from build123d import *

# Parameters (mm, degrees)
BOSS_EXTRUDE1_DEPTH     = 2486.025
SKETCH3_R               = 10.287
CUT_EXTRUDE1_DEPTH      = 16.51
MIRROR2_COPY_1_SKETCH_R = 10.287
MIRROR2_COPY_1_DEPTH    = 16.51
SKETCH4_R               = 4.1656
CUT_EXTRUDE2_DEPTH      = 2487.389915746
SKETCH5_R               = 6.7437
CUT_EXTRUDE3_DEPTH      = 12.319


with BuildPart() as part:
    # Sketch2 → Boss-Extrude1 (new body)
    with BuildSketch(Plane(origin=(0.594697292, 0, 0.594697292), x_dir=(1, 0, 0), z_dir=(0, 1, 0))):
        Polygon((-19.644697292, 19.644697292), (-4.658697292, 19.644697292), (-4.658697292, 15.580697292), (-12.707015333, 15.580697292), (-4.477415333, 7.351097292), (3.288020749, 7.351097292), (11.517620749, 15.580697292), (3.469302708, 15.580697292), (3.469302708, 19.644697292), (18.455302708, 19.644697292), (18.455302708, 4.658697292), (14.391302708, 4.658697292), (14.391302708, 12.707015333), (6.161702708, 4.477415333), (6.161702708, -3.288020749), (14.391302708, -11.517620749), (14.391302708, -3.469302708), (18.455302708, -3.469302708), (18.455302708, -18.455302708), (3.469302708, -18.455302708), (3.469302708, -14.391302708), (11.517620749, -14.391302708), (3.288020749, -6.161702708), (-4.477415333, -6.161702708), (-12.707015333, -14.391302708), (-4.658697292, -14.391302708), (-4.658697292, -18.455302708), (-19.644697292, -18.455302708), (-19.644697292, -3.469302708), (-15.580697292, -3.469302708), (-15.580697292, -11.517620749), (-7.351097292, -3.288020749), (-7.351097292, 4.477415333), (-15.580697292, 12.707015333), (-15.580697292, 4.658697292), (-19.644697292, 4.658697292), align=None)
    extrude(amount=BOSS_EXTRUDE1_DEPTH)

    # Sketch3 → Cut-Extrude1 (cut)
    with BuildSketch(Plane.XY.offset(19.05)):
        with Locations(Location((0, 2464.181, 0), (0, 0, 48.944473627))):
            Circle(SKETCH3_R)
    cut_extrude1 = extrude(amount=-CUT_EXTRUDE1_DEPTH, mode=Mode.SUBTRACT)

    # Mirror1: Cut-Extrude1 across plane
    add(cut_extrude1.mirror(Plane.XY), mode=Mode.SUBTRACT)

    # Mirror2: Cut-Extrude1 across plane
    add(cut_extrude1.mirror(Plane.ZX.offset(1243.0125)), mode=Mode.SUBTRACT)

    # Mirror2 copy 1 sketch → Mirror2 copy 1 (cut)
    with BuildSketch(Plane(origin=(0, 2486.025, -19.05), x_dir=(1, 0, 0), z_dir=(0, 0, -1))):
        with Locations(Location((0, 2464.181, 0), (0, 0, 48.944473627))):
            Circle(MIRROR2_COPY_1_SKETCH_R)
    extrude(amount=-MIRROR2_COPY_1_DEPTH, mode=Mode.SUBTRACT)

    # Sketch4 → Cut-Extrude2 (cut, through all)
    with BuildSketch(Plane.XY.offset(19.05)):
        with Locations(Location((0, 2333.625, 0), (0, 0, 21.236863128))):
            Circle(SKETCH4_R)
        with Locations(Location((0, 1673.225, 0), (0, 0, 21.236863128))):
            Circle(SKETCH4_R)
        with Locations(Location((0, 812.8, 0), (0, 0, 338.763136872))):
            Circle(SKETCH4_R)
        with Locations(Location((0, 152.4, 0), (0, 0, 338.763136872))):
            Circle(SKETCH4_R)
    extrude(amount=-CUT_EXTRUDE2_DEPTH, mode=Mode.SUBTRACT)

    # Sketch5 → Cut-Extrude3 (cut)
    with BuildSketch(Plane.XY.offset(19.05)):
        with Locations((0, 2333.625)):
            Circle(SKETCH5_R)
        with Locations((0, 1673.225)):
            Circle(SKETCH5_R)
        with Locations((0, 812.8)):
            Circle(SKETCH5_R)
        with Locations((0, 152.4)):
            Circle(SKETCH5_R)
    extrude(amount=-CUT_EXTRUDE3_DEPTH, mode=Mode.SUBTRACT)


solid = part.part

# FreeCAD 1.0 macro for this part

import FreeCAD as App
import Part
import Sketcher
Q = App.Units.Quantity

doc = App.newDocument("Part")
body = doc.addObject("PartDesign::Body", "Body")

# Sketch on XZ plane
sketch1 = body.newObject("Sketcher::SketchObject", "Sketch")
sketch1.AttachmentSupport = (doc.getObject("XZ_Plane"), [""])
sketch1.MapMode = "FlatFace"
sketch1.addGeometry([
    Part.LineSegment(App.Vector(-4.1, -19.1, 0), App.Vector(-19.1, -19.1, 0)),  # 0
    Part.LineSegment(App.Vector(-19.1, -19.1, 0), App.Vector(-19.1, -4.1, 0)),  # 1
    Part.LineSegment(App.Vector(-19.1, -4.1, 0), App.Vector(-15, -4.1, 0)),  # 2
    Part.LineSegment(App.Vector(-15, -4.1, 0), App.Vector(-15, -12.1, 0)),  # 3
    Part.LineSegment(App.Vector(-15, -12.1, 0), App.Vector(-6.8, -3.9, 0)),  # 4
    Part.LineSegment(App.Vector(-6.8, -3.9, 0), App.Vector(-6.8, 3.9, 0)),  # 5
    Part.LineSegment(App.Vector(-6.8, 3.9, 0), App.Vector(-15, 12.1, 0)),  # 6
    Part.LineSegment(App.Vector(-15, 12.1, 0), App.Vector(-15, 4.1, 0)),  # 7
    Part.LineSegment(App.Vector(-15, 4.1, 0), App.Vector(-19.1, 4.1, 0)),  # 8
    Part.LineSegment(App.Vector(-19.1, 4.1, 0), App.Vector(-19.1, 19.1, 0)),  # 9
    Part.LineSegment(App.Vector(-19.1, 19.1, 0), App.Vector(-4.1, 19.1, 0)),  # 10
    Part.LineSegment(App.Vector(-4.1, 19.1, 0), App.Vector(-4.1, 15, 0)),  # 11
    Part.LineSegment(App.Vector(-4.1, 15, 0), App.Vector(-12.1, 15, 0)),  # 12
    Part.LineSegment(App.Vector(-12.1, 15, 0), App.Vector(-3.9, 6.8, 0)),  # 13
    Part.LineSegment(App.Vector(-3.9, 6.8, 0), App.Vector(3.9, 6.8, 0)),  # 14
    Part.LineSegment(App.Vector(3.9, 6.8, 0), App.Vector(12.1, 15, 0)),  # 15
    Part.LineSegment(App.Vector(12.1, 15, 0), App.Vector(4.1, 15, 0)),  # 16
    Part.LineSegment(App.Vector(4.1, 15, 0), App.Vector(4.1, 19.1, 0)),  # 17
    Part.LineSegment(App.Vector(4.1, 19.1, 0), App.Vector(19.1, 19.1, 0)),  # 18
    Part.LineSegment(App.Vector(19.1, 19.1, 0), App.Vector(19.1, 4.1, 0)),  # 19
    Part.LineSegment(App.Vector(19.1, 4.1, 0), App.Vector(15, 4.1, 0)),  # 20
    Part.LineSegment(App.Vector(15, 4.1, 0), App.Vector(15, 12.1, 0)),  # 21
    Part.LineSegment(App.Vector(15, 12.1, 0), App.Vector(6.8, 3.9, 0)),  # 22
    Part.LineSegment(App.Vector(6.8, 3.9, 0), App.Vector(6.8, -3.9, 0)),  # 23
    Part.LineSegment(App.Vector(6.8, -3.9, 0), App.Vector(15, -12.1, 0)),  # 24
    Part.LineSegment(App.Vector(15, -12.1, 0), App.Vector(15, -4.1, 0)),  # 25
    Part.LineSegment(App.Vector(15, -4.1, 0), App.Vector(19.1, -4.1, 0)),  # 26
    Part.LineSegment(App.Vector(19.1, -4.1, 0), App.Vector(19.1, -19.1, 0)),  # 27
    Part.LineSegment(App.Vector(19.1, -19.1, 0), App.Vector(4.1, -19.1, 0)),  # 28
    Part.LineSegment(App.Vector(4.1, -19.1, 0), App.Vector(4.1, -15, 0)),  # 29
    Part.LineSegment(App.Vector(4.1, -15, 0), App.Vector(12.1, -15, 0)),  # 30
    Part.LineSegment(App.Vector(12.1, -15, 0), App.Vector(3.9, -6.8, 0)),  # 31
    Part.LineSegment(App.Vector(3.9, -6.8, 0), App.Vector(-3.9, -6.8, 0)),  # 32
    Part.LineSegment(App.Vector(-3.9, -6.8, 0), App.Vector(-12.1, -15, 0)),  # 33
    Part.LineSegment(App.Vector(-12.1, -15, 0), App.Vector(-4.1, -15, 0)),  # 34
    Part.LineSegment(App.Vector(-4.1, -15, 0), App.Vector(-4.1, -19.1, 0)),  # 35
], False)
sketch1.addConstraint([
    Sketcher.Constraint("Coincident", 0, 2, 1, 1),
    Sketcher.Constraint("Coincident", 1, 2, 2, 1),
    Sketcher.Constraint("Coincident", 2, 2, 3, 1),
    Sketcher.Constraint("Coincident", 3, 2, 4, 1),
    Sketcher.Constraint("Coincident", 4, 2, 5, 1),
    Sketcher.Constraint("Coincident", 5, 2, 6, 1),
    Sketcher.Constraint("Coincident", 6, 2, 7, 1),
    Sketcher.Constraint("Coincident", 7, 2, 8, 1),
    Sketcher.Constraint("Coincident", 8, 2, 9, 1),
    Sketcher.Constraint("Coincident", 9, 2, 10, 1),
    Sketcher.Constraint("Coincident", 10, 2, 11, 1),
    Sketcher.Constraint("Coincident", 11, 2, 12, 1),
    Sketcher.Constraint("Coincident", 12, 2, 13, 1),
    Sketcher.Constraint("Coincident", 13, 2, 14, 1),
    Sketcher.Constraint("Coincident", 14, 2, 15, 1),
    Sketcher.Constraint("Coincident", 15, 2, 16, 1),
    Sketcher.Constraint("Coincident", 16, 2, 17, 1),
    Sketcher.Constraint("Coincident", 17, 2, 18, 1),
    Sketcher.Constraint("Coincident", 18, 2, 19, 1),
    Sketcher.Constraint("Coincident", 19, 2, 20, 1),
    Sketcher.Constraint("Coincident", 20, 2, 21, 1),
    Sketcher.Constraint("Coincident", 21, 2, 22, 1),
    Sketcher.Constraint("Coincident", 22, 2, 23, 1),
    Sketcher.Constraint("Coincident", 23, 2, 24, 1),
    Sketcher.Constraint("Coincident", 24, 2, 25, 1),
    Sketcher.Constraint("Coincident", 25, 2, 26, 1),
    Sketcher.Constraint("Coincident", 26, 2, 27, 1),
    Sketcher.Constraint("Coincident", 27, 2, 28, 1),
    Sketcher.Constraint("Coincident", 28, 2, 29, 1),
    Sketcher.Constraint("Coincident", 29, 2, 30, 1),
    Sketcher.Constraint("Coincident", 30, 2, 31, 1),
    Sketcher.Constraint("Coincident", 31, 2, 32, 1),
    Sketcher.Constraint("Coincident", 32, 2, 33, 1),
    Sketcher.Constraint("Coincident", 33, 2, 34, 1),
    Sketcher.Constraint("Coincident", 34, 2, 35, 1),
    Sketcher.Constraint("Coincident", 35, 2, 0, 1),
    Sketcher.Constraint("Horizontal", 0),
    Sketcher.Constraint("Vertical", 1),
    Sketcher.Constraint("Horizontal", 2),
    Sketcher.Constraint("Vertical", 3),
    Sketcher.Constraint("Vertical", 5),
    Sketcher.Constraint("Vertical", 7),
    Sketcher.Constraint("Horizontal", 8),
    Sketcher.Constraint("Vertical", 9),
    Sketcher.Constraint("Horizontal", 10),
    Sketcher.Constraint("Vertical", 11),
    Sketcher.Constraint("Horizontal", 12),
    Sketcher.Constraint("Horizontal", 14),
    Sketcher.Constraint("Horizontal", 16),
    Sketcher.Constraint("Vertical", 17),
    Sketcher.Constraint("Horizontal", 18),
    Sketcher.Constraint("Vertical", 19),
    Sketcher.Constraint("Horizontal", 20),
    Sketcher.Constraint("Vertical", 21),
    Sketcher.Constraint("Vertical", 23),
    Sketcher.Constraint("Vertical", 25),
    Sketcher.Constraint("Horizontal", 26),
    Sketcher.Constraint("Vertical", 27),
    Sketcher.Constraint("Horizontal", 28),
    Sketcher.Constraint("Vertical", 29),
    Sketcher.Constraint("Horizontal", 30),
    Sketcher.Constraint("Horizontal", 32),
    Sketcher.Constraint("Horizontal", 34),
    Sketcher.Constraint("Vertical", 35),
    Sketcher.Constraint("Symmetric", 0, 2, 18, 2, -1, 1),
    Sketcher.Constraint("Symmetric", 2, 2, 20, 2, -1, 1),
    Sketcher.Constraint("Symmetric", 4, 2, 22, 2, -1, 1),
    Sketcher.Constraint("Symmetric", 6, 2, 24, 2, -1, 1),
    Sketcher.Constraint("Symmetric", 8, 2, 26, 2, -1, 1),
    Sketcher.Constraint("Symmetric", 10, 2, 28, 2, -1, 1),
    Sketcher.Constraint("Symmetric", 12, 2, 30, 2, -1, 1),
    Sketcher.Constraint("Symmetric", 13, 2, 31, 2, -1, 1),
    Sketcher.Constraint("Symmetric", 15, 2, 33, 2, -1, 1),
    Sketcher.Constraint("Symmetric", 12, 2, 15, 2, -2),
    Sketcher.Constraint("Symmetric", 10, 2, 17, 2, -2),
    Sketcher.Constraint("Symmetric", 8, 2, 19, 2, -2),
    Sketcher.Constraint("Symmetric", 6, 2, 21, 2, -2),
    Sketcher.Constraint("Perpendicular", 4, 6),
    Sketcher.Constraint("Parallel", 6, 13),
    Sketcher.Constraint("Perpendicular", 13, 15),
    Sketcher.Constraint("Parallel", 15, 22),
    Sketcher.Constraint("Perpendicular", 22, 24),
    Sketcher.Constraint("Perpendicular", 31, 33),
    Sketcher.Constraint("Horizontal", 5, 2, 22, 2),
    Sketcher.Constraint("Vertical", 11, 2, 34, 2),
    Sketcher.Constraint("Equal", 28, 1),
    Sketcher.Constraint("Equal", 34, 3),
    Sketcher.Constraint("Equal", 32, 5),
    Sketcher.Constraint("Equal", 26, 11),
    Sketcher.Constraint("Equal", 6, 13),
    Sketcher.Constraint("DistanceX", 0, 2, 0, 1, Q("0.59 in")),
    Sketcher.Constraint("DistanceX", 2, 1, 2, 2, Q("0.16 in")),
    Sketcher.Constraint("DistanceX", 0, 2, -1, 1, Q("0.75 in")),
    Sketcher.Constraint("DistanceX", 4, 2, -1, 1, Q("0.266 in")),
    Sketcher.Constraint("DistanceX", 12, 2, 12, 1, Q("8.048318 mm")),
])
pad1 = body.newObject("PartDesign::Pad", "Pad")
pad1.Profile = sketch1
pad1.Length = Q("97.875 in")
pad1.Reversed = True

# Sketch on XY plane
sketch2 = body.newObject("Sketcher::SketchObject", "Sketch001")
sketch2.AttachmentSupport = (doc.getObject("XY_Plane"), [""])
sketch2.MapMode = "FlatFace"
sketch2.AttachmentOffset = App.Placement(App.Vector(0, 0, 0.75 * 25.4), App.Rotation())
sketch2.addGeometry(Part.Circle(App.Vector(0, 2464, 0), App.Vector(0, 0, 1), 10), False)
sketch2.addConstraint([
    Sketcher.Constraint("PointOnObject", 0, 3, -2),
    Sketcher.Constraint("Diameter", 0, Q("0.81 in")),
    Sketcher.Constraint("DistanceY", -1, 1, 0, 3, Q("97.015 in")),
])
pocket1 = body.newObject("PartDesign::Pocket", "Pocket")
pocket1.Profile = sketch2
pocket1.Length = Q("0.65 in")
doc.recompute()

mirrored = body.newObject("PartDesign::Mirrored", "Mirrored")
mirrored.Originals = [pocket1]
mirrored.MirrorPlane = (doc.getObject("XY_Plane"), [""])
body.Tip = mirrored
doc.recompute()

datumplane = body.newObject("PartDesign::Plane", "DatumPlane")
datumplane.AttachmentSupport = (doc.getObject("XZ_Plane"), [""])
datumplane.MapMode = "FlatFace"
datumplane.AttachmentOffset = App.Placement(App.Vector(0, 0, -48.9375 * 25.4), App.Rotation())
mirrored2 = body.newObject("PartDesign::Mirrored", "Mirrored001")
mirrored2.Originals = [pocket1]
mirrored2.MirrorPlane = (datumplane, [""])
body.Tip = mirrored2

# Sketch on XY plane
sketch3 = body.newObject("Sketcher::SketchObject", "Sketch002")
sketch3.AttachmentSupport = (doc.getObject("XY_Plane"), [""])
sketch3.MapMode = "FlatFace"
sketch3.AttachmentOffset = App.Placement(App.Vector(0, 0, -0.75 * 25.4), App.Rotation())
sketch3.addGeometry(Part.Circle(App.Vector(0, 22, 0), App.Vector(0, 0, 1), 10), False)
sketch3.addConstraint([
    Sketcher.Constraint("PointOnObject", 0, 3, -2),
    Sketcher.Constraint("Diameter", 0, Q("0.81 in")),
    Sketcher.Constraint("DistanceY", -1, 1, 0, 3, Q("0.86 in")),
])
pocket2 = body.newObject("PartDesign::Pocket", "Pocket001")
pocket2.Profile = sketch3
pocket2.Length = Q("0.65 in")
pocket2.Reversed = True

# Sketch on XY plane
sketch4 = body.newObject("Sketcher::SketchObject", "Sketch003")
sketch4.AttachmentSupport = (doc.getObject("XY_Plane"), [""])
sketch4.MapMode = "FlatFace"
sketch4.AttachmentOffset = App.Placement(App.Vector(0, 0, 0.75 * 25.4), App.Rotation())
sketch4.addGeometry([
    Part.Circle(App.Vector(0, 2333.6, 0), App.Vector(0, 0, 1), 4.2),
    Part.Circle(App.Vector(0, 1673.2, 0), App.Vector(0, 0, 1), 4.2),
    Part.Circle(App.Vector(0, 812.8, 0), App.Vector(0, 0, 1), 4.2),
    Part.Circle(App.Vector(0, 152.4, 0), App.Vector(0, 0, 1), 4.2),
], False)
sketch4.addConstraint([
    Sketcher.Constraint("Equal", 0, 1),
    Sketcher.Constraint("Equal", 1, 2),
    Sketcher.Constraint("Equal", 2, 3),
    Sketcher.Constraint("PointOnObject", 0, 3, -2),
    Sketcher.Constraint("PointOnObject", 1, 3, -2),
    Sketcher.Constraint("PointOnObject", 2, 3, -2),
    Sketcher.Constraint("PointOnObject", 3, 3, -2),
    Sketcher.Constraint("Diameter", 0, Q("0.328 in")),
    Sketcher.Constraint("DistanceY", -1, 1, 2, 3, Q("32 in")),
    Sketcher.Constraint("DistanceY", -1, 1, 3, 3, Q("6 in")),
    Sketcher.Constraint("DistanceY", 1, 3, 0, 3, Q("26 in")),
    Sketcher.Constraint("DistanceY", -1, 1, 0, 3, Q("91.875 in")),
])
pocket3 = body.newObject("PartDesign::Pocket", "Pocket002")
pocket3.Profile = sketch4
pocket3.Type = "ThroughAll"

# Sketch on XY plane
sketch5 = body.newObject("Sketcher::SketchObject", "Sketch004")
sketch5.AttachmentSupport = (doc.getObject("XY_Plane"), [""])
sketch5.MapMode = "FlatFace"
sketch5.AttachmentOffset = App.Placement(App.Vector(0, 0, 0.75 * 25.4), App.Rotation())
sketch5.addGeometry([
    Part.Circle(App.Vector(0, 2334, 0), App.Vector(0, 0, 1), 7),
    Part.Circle(App.Vector(0, 1673, 0), App.Vector(0, 0, 1), 7),
    Part.Circle(App.Vector(0, 813, 0), App.Vector(0, 0, 1), 7),
    Part.Circle(App.Vector(0, 152, 0), App.Vector(0, 0, 1), 7),
], False)
sketch5.addConstraint([
    Sketcher.Constraint("Equal", 0, 1),
    Sketcher.Constraint("Equal", 1, 2),
    Sketcher.Constraint("Equal", 2, 3),
    Sketcher.Constraint("PointOnObject", 0, 3, -2),
    Sketcher.Constraint("PointOnObject", 1, 3, -2),
    Sketcher.Constraint("PointOnObject", 2, 3, -2),
    Sketcher.Constraint("PointOnObject", 3, 3, -2),
    Sketcher.Constraint("Diameter", 0, Q("0.531 in")),
    Sketcher.Constraint("DistanceY", -1, 1, 2, 3, Q("32 in")),
    Sketcher.Constraint("DistanceY", -1, 1, 3, 3, Q("6 in")),
    Sketcher.Constraint("DistanceY", 1, 3, 0, 3, Q("26 in")),
    Sketcher.Constraint("DistanceY", -1, 1, 0, 3, Q("91.875 in")),
])
pocket4 = body.newObject("PartDesign::Pocket", "Pocket003")
pocket4.Profile = sketch5
pocket4.Length = Q("0.485 in")

doc.recompute()
